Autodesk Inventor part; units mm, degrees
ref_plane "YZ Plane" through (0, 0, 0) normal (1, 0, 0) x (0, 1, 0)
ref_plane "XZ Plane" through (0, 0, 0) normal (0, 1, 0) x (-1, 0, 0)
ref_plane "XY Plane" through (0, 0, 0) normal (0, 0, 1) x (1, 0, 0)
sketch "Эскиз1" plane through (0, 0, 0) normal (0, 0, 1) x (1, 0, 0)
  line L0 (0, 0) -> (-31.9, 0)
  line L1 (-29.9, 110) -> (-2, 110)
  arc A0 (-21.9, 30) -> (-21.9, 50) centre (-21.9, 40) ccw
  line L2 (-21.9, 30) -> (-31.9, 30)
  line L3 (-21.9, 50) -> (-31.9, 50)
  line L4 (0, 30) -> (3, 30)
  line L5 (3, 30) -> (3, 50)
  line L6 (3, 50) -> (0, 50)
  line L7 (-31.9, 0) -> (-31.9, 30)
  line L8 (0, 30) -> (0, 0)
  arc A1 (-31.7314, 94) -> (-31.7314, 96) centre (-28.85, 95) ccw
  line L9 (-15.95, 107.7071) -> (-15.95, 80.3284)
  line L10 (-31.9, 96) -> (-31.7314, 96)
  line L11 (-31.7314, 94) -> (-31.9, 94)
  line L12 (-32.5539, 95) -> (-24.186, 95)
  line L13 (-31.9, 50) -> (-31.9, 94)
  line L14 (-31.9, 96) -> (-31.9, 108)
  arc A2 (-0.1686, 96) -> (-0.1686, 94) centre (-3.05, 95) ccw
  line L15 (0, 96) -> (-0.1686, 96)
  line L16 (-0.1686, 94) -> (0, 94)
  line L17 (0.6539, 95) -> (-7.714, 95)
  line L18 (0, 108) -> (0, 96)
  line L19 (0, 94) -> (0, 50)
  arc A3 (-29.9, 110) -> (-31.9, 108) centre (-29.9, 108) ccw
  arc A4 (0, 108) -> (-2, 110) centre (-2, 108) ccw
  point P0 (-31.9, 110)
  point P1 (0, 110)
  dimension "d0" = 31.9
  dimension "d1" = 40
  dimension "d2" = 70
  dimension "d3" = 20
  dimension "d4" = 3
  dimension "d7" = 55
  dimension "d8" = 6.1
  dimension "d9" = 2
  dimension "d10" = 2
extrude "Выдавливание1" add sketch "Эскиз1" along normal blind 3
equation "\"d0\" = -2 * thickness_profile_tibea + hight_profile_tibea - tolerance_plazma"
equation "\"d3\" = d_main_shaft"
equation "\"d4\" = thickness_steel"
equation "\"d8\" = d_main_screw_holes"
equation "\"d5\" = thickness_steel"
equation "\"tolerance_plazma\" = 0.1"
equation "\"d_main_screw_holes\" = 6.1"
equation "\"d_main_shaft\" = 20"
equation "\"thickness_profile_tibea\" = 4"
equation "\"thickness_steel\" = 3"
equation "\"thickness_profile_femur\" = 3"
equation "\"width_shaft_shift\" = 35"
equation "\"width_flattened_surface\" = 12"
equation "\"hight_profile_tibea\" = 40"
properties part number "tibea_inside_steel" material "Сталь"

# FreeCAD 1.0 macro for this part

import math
import FreeCAD as App
import Part
import Sketcher

V = App.Vector

doc = App.newDocument("Part")
params = doc.addObject("Spreadsheet::Sheet", "Params")
for row, (alias, value) in enumerate([
    ("sketch1_radius", "2 mm"),
    ("sketch1_radius2", "10 mm"),
    ("sketch1_width", "3 mm"),
    ("sketch1_radius3", "3.05 mm"),
    ("sketch1_width2", "31.9 mm"),
    ("pad1_length", "3 mm"),
], start=1):
    params.set(f"A{row}", alias)
    params.set(f"B{row}", "=" + value)
    params.setAlias(f"B{row}", alias)

body = doc.addObject("PartDesign::Body", "Body")

sketch1 = doc.addObject("Sketcher::SketchObject", "Sketch")
body.addObject(sketch1)
sketch1.AttachmentSupport = (doc.XY_Plane, [""])
sketch1.MapMode = "FlatFace"
sketch1.addGeometry(Part.LineSegment(V(-31.9, 0, 0), V(0, 0, 0)), False)
sketch1.addGeometry(Part.LineSegment(V(0, 0, 0), V(0, 30, 0)), False)
sketch1.addGeometry(Part.LineSegment(V(0, 30, 0), V(3, 30, 0)), False)
sketch1.addGeometry(Part.LineSegment(V(3, 30, 0), V(3, 50, 0)), False)
sketch1.addGeometry(Part.LineSegment(V(3, 50, 0), V(0, 50, 0)), False)
sketch1.addGeometry(Part.LineSegment(V(0, 50, 0), V(0, 94, 0)), False)
sketch1.addGeometry(Part.LineSegment(V(0, 94, 0), V(-0.17, 94, 0)), False)
sketch1.addGeometry(Part.ArcOfCircle(Part.Circle(V(-3.05, 95, 0), V(0, 0, 1), 3.05), math.radians(19), math.radians(341)), False)
sketch1.addGeometry(Part.LineSegment(V(-0.17, 96, 0), V(0, 96, 0)), False)
sketch1.addGeometry(Part.LineSegment(V(0, 96, 0), V(0, 108, 0)), False)
sketch1.addGeometry(Part.ArcOfCircle(Part.Circle(V(-2, 108, 0), V(0, 0, 1), 2), math.radians(0), math.radians(90)), False)
sketch1.addGeometry(Part.LineSegment(V(-2, 110, 0), V(-29.9, 110, 0)), False)
sketch1.addGeometry(Part.ArcOfCircle(Part.Circle(V(-29.9, 108, 0), V(0, 0, 1), 2), math.radians(90), math.radians(180)), False)
sketch1.addGeometry(Part.LineSegment(V(-31.9, 108, 0), V(-31.9, 96, 0)), False)
sketch1.addGeometry(Part.LineSegment(V(-31.9, 96, 0), V(-31.73, 96, 0)), False)
sketch1.addGeometry(Part.ArcOfCircle(Part.Circle(V(-28.85, 95, 0), V(0, 0, 1), 3.05), math.radians(-161), math.radians(161)), False)
sketch1.addGeometry(Part.LineSegment(V(-31.73, 94, 0), V(-31.9, 94, 0)), False)
sketch1.addGeometry(Part.LineSegment(V(-31.9, 94, 0), V(-31.9, 50, 0)), False)
sketch1.addGeometry(Part.LineSegment(V(-31.9, 50, 0), V(-21.9, 50, 0)), False)
sketch1.addGeometry(Part.ArcOfCircle(Part.Circle(V(-21.9, 40, 0), V(0, 0, 1), 10), math.radians(-90), math.radians(90)), False)
sketch1.addGeometry(Part.LineSegment(V(-21.9, 30, 0), V(-31.9, 30, 0)), False)
sketch1.addGeometry(Part.LineSegment(V(-31.9, 30, 0), V(-31.9, 0, 0)), False)
sketch1.addConstraint(Sketcher.Constraint("Coincident", 0, 2, 1, 1))
sketch1.addConstraint(Sketcher.Constraint("Coincident", 1, 2, 2, 1))
sketch1.addConstraint(Sketcher.Constraint("Coincident", 2, 2, 3, 1))
sketch1.addConstraint(Sketcher.Constraint("Coincident", 3, 2, 4, 1))
sketch1.addConstraint(Sketcher.Constraint("Coincident", 4, 2, 5, 1))
sketch1.addConstraint(Sketcher.Constraint("Coincident", 5, 2, 6, 1))
sketch1.addConstraint(Sketcher.Constraint("Coincident", 6, 2, 7, 2))
sketch1.addConstraint(Sketcher.Constraint("Coincident", 7, 1, 8, 1))
sketch1.addConstraint(Sketcher.Constraint("Coincident", 8, 2, 9, 1))
sketch1.addConstraint(Sketcher.Constraint("Tangent", 9, 2, 10, 1))
sketch1.addConstraint(Sketcher.Constraint("Tangent", 10, 2, 11, 1))
sketch1.addConstraint(Sketcher.Constraint("Tangent", 11, 2, 12, 1))
sketch1.addConstraint(Sketcher.Constraint("Tangent", 12, 2, 13, 1))
sketch1.addConstraint(Sketcher.Constraint("Coincident", 13, 2, 14, 1))
sketch1.addConstraint(Sketcher.Constraint("Coincident", 14, 2, 15, 2))
sketch1.addConstraint(Sketcher.Constraint("Coincident", 15, 1, 16, 1))
sketch1.addConstraint(Sketcher.Constraint("Coincident", 16, 2, 17, 1))
sketch1.addConstraint(Sketcher.Constraint("Coincident", 17, 2, 18, 1))
sketch1.addConstraint(Sketcher.Constraint("Tangent", 18, 2, 19, 2))
sketch1.addConstraint(Sketcher.Constraint("Tangent", 19, 1, 20, 1))
sketch1.addConstraint(Sketcher.Constraint("Coincident", 20, 2, 21, 1))
sketch1.addConstraint(Sketcher.Constraint("Coincident", 21, 2, 0, 1))
sketch1.addConstraint(Sketcher.Constraint("Horizontal", 0))
sketch1.addConstraint(Sketcher.Constraint("Vertical", 1))
sketch1.addConstraint(Sketcher.Constraint("Horizontal", 2))
sketch1.addConstraint(Sketcher.Constraint("Vertical", 3))
sketch1.addConstraint(Sketcher.Constraint("Horizontal", 4))
sketch1.addConstraint(Sketcher.Constraint("Vertical", 5))
sketch1.addConstraint(Sketcher.Constraint("Horizontal", 6))
sketch1.addConstraint(Sketcher.Constraint("Horizontal", 8))
sketch1.addConstraint(Sketcher.Constraint("Vertical", 9))
sketch1.addConstraint(Sketcher.Constraint("Horizontal", 11))
sketch1.addConstraint(Sketcher.Constraint("Vertical", 13))
sketch1.addConstraint(Sketcher.Constraint("Horizontal", 14))
sketch1.addConstraint(Sketcher.Constraint("Horizontal", 16))
sketch1.addConstraint(Sketcher.Constraint("Vertical", 17))
sketch1.addConstraint(Sketcher.Constraint("Horizontal", 18))
sketch1.addConstraint(Sketcher.Constraint("Horizontal", 20))
sketch1.addConstraint(Sketcher.Constraint("Vertical", 21))
sketch1.addConstraint(Sketcher.Constraint("Coincident", 0, 2, -1, 1))
sketch1.addConstraint(Sketcher.Constraint("Equal", 10, 12))
sketch1.addConstraint(Sketcher.Constraint("Equal", 7, 15))
sketch1.addConstraint(Sketcher.Constraint("PointOnObject", 4, 2, -2))
sketch1.addConstraint(Sketcher.Constraint("PointOnObject", 8, 2, -2))
sketch1.addConstraint(Sketcher.Constraint("Horizontal", 7, 3, 15, 3))
sketch1.addConstraint(Sketcher.Constraint("Horizontal", 8, 2, 13, 2))
sketch1.addConstraint(Sketcher.Constraint("Horizontal", 6, 2, 15, 1))
sketch1.addConstraint(Sketcher.Constraint("Horizontal", 4, 2, 17, 2))
sketch1.addConstraint(Sketcher.Constraint("Horizontal", 2, 2, 19, 1))
sketch1.addConstraint(Sketcher.Constraint("Vertical", 6, 2, 7, 1))
sketch1.addConstraint(Sketcher.Constraint("Vertical", 13, 2, 16, 2))
sketch1.addConstraint(Sketcher.Constraint("Vertical", 17, 2, 20, 2))
sketch1.addConstraint(Sketcher.Constraint("Equal", 8, 14))
sketch1.addConstraint(Sketcher.Constraint("Radius", 10, 2.0))
sketch1.addConstraint(Sketcher.Constraint("Radius", 19, 10.0))
sketch1.addConstraint(Sketcher.Constraint("DistanceX", 2, 1, 2, 2, 3.0))
sketch1.addConstraint(Sketcher.Constraint("Radius", 7, 3.05))
sketch1.addConstraint(Sketcher.Constraint("DistanceX", 0, 1, 0, 2, 31.9))
sketch1.addConstraint(Sketcher.Constraint("DistanceY", -1, 1, 19, 3, 40.0))
sketch1.addConstraint(Sketcher.Constraint("DistanceY", 19, 3, 15, 3, 55.0))
sketch1.addConstraint(Sketcher.Constraint("DistanceY", 6, 2, 7, 1, 2.0))
sketch1.addConstraint(Sketcher.Constraint("DistanceX", 18, 1, 18, 2, 10.0))
sketch1.addConstraint(Sketcher.Constraint("DistanceY", 9, 1, 9, 2, 12.0))
sketch1.addConstraint(Sketcher.Constraint("DistanceX", 15, 3, 7, 3, 25.8))
sketch1.setExpression("Constraints[53]", "Params.sketch1_radius")
sketch1.setExpression("Constraints[54]", "Params.sketch1_radius2")
sketch1.setExpression("Constraints[55]", "Params.sketch1_width")
sketch1.setExpression("Constraints[56]", "Params.sketch1_radius3")
sketch1.setExpression("Constraints[57]", "Params.sketch1_width2")
pad1 = doc.addObject("PartDesign::Pad", "Pad")
body.addObject(pad1)
pad1.Profile = sketch1
pad1.setExpression("Length", "Params.pad1_length")

doc.recompute()
